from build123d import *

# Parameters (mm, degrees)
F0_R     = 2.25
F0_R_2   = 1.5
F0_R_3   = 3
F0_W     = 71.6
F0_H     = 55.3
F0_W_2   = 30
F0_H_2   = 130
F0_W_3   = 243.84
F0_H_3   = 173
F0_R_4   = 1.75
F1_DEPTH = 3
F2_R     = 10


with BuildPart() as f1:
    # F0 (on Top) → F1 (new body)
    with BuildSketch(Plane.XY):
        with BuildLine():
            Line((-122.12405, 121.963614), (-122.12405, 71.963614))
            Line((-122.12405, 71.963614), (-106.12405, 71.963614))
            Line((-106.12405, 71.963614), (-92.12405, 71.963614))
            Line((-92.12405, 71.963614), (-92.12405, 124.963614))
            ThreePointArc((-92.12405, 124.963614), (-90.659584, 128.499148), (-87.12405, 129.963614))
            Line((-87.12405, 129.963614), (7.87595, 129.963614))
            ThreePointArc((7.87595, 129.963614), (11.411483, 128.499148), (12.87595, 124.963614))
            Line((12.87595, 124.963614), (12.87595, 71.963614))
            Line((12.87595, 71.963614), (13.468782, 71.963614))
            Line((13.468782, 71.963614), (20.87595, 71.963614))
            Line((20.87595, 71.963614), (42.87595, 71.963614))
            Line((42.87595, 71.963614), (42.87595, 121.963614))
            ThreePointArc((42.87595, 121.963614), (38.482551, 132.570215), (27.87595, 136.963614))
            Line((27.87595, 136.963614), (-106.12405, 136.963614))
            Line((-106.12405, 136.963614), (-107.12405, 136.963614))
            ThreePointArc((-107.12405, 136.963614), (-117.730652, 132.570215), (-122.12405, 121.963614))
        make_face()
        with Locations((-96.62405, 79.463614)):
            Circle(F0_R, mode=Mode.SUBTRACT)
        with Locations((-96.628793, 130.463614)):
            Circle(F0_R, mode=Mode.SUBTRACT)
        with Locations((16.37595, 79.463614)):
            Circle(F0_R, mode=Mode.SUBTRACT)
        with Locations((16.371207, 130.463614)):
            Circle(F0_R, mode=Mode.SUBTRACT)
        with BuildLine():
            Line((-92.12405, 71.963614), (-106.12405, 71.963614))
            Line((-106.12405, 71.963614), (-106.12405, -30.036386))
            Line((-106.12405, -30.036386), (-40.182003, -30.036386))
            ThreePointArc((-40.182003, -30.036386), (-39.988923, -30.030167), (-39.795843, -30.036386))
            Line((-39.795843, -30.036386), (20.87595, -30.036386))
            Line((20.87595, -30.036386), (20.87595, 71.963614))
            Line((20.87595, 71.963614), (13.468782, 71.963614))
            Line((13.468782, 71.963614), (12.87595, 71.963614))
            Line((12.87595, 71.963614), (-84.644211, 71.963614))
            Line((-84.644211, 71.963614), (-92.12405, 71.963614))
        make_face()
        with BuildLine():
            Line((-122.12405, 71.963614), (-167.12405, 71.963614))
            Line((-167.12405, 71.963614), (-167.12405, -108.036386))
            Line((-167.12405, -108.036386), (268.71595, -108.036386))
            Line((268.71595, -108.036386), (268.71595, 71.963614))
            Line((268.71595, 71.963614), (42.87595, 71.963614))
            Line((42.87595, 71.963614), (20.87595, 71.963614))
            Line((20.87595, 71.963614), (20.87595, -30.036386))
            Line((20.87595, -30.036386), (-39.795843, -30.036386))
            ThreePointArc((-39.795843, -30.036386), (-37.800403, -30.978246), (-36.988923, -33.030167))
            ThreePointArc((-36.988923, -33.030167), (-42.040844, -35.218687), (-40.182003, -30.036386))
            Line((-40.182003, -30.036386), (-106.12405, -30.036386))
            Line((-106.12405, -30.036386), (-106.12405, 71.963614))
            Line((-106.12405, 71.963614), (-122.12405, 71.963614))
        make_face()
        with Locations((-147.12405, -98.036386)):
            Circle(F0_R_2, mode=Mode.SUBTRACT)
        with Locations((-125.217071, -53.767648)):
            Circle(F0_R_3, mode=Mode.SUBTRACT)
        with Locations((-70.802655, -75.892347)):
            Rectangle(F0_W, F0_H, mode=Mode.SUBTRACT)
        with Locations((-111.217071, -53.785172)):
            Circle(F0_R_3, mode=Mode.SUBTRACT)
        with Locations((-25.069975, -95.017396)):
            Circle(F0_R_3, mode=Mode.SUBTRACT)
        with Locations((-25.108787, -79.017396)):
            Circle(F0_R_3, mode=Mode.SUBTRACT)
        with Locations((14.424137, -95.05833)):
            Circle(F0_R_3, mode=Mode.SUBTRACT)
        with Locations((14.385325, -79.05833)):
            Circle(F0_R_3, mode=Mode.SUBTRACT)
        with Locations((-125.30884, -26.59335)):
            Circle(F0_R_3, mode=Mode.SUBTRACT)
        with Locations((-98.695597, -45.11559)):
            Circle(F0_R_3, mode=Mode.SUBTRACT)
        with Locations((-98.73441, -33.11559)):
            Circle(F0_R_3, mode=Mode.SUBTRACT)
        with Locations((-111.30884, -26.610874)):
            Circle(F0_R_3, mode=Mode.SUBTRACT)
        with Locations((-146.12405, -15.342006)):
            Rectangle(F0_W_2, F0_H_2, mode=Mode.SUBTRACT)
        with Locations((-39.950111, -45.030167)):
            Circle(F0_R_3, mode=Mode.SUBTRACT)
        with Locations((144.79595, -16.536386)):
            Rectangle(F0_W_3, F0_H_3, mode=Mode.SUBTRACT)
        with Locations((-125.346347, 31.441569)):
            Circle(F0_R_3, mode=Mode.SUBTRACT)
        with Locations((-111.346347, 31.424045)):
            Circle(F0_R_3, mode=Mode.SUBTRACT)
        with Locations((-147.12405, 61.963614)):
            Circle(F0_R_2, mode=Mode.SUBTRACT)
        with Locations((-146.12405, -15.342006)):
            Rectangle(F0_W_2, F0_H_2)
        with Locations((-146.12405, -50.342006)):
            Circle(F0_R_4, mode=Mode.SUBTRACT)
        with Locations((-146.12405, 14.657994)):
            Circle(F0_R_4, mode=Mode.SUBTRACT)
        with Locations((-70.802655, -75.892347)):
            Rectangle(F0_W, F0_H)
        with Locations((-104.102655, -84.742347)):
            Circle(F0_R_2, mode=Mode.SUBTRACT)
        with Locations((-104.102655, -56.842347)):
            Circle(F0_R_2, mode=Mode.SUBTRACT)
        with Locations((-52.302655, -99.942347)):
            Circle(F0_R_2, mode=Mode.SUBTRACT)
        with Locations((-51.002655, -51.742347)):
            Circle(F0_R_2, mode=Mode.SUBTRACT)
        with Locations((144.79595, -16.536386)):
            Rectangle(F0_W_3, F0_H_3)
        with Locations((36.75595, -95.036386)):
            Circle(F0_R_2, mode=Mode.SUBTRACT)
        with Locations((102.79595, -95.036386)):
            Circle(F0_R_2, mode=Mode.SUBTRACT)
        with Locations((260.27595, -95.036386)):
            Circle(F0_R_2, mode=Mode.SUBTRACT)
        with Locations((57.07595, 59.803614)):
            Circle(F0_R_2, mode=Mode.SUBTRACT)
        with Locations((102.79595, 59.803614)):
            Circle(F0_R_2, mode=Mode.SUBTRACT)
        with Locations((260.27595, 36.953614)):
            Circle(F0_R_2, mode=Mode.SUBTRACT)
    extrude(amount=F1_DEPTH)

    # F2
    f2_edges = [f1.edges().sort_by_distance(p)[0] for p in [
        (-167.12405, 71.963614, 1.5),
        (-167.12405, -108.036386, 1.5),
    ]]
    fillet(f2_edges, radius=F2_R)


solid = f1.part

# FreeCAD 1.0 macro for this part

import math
import FreeCAD as App
import Part
import Sketcher


def edges_at(feature, points):
    """Names of the edges that pass closest to the given points."""
    edges = feature.Shape.Edges
    near = lambda p: min(range(len(edges)), key=lambda i: edges[i].distToShape(Part.Vertex(*p))[0])
    return sorted({f"Edge{near(p) + 1}" for p in points})

doc = App.newDocument("Part")
body = doc.addObject("PartDesign::Body", "Body")

# Sketch on XY plane
sketch1 = body.newObject("Sketcher::SketchObject", "Sketch")
sketch1.AttachmentSupport = (doc.getObject("XY_Plane"), [""])
sketch1.MapMode = "FlatFace"
sketch1.addGeometry([
    Part.LineSegment(App.Vector(-122.12, 121.96, 0), App.Vector(-122.12, 71.96, 0)),  # 0
    Part.LineSegment(App.Vector(-122.12, 71.96, 0), App.Vector(-167.12, 71.96, 0)),  # 1
    Part.LineSegment(App.Vector(-167.12, 71.96, 0), App.Vector(-167.12, -108.04, 0)),  # 2
    Part.LineSegment(App.Vector(-167.12, -108.04, 0), App.Vector(268.72, -108.04, 0)),  # 3
    Part.LineSegment(App.Vector(268.72, -108.04, 0), App.Vector(268.72, 71.96, 0)),  # 4
    Part.LineSegment(App.Vector(268.72, 71.96, 0), App.Vector(42.88, 71.96, 0)),  # 5
    Part.LineSegment(App.Vector(42.88, 71.96, 0), App.Vector(42.88, 121.96, 0)),  # 6
    Part.ArcOfCircle(Part.Circle(App.Vector(27.88, 121.96, 0), App.Vector(0, 0, 1), 15), math.radians(0), math.radians(90)),  # 7
    Part.LineSegment(App.Vector(27.88, 136.96, 0), App.Vector(-107.12, 136.96, 0)),  # 8
    Part.ArcOfCircle(Part.Circle(App.Vector(-107.12, 121.96, 0), App.Vector(0, 0, 1), 15), math.radians(90), math.radians(180)),  # 9
    Part.Circle(App.Vector(-147.12, -98.04, 0), App.Vector(0, 0, 1), 1.5),  # 10
    Part.Circle(App.Vector(-104.1, -84.74, 0), App.Vector(0, 0, 1), 1.5),  # 11
    Part.Circle(App.Vector(-52.3, -99.94, 0), App.Vector(0, 0, 1), 1.5),  # 12
    Part.Circle(App.Vector(-146.12, -50.34, 0), App.Vector(0, 0, 1), 1.75),  # 13
    Part.Circle(App.Vector(-125.22, -53.77, 0), App.Vector(0, 0, 1), 3),  # 14
    Part.Circle(App.Vector(-111.22, -53.79, 0), App.Vector(0, 0, 1), 3),  # 15
    Part.Circle(App.Vector(-104.1, -56.84, 0), App.Vector(0, 0, 1), 1.5),  # 16
    Part.Circle(App.Vector(-98.7, -45.12, 0), App.Vector(0, 0, 1), 3),  # 17
    Part.Circle(App.Vector(-51, -51.74, 0), App.Vector(0, 0, 1), 1.5),  # 18
    Part.Circle(App.Vector(-25.07, -95.02, 0), App.Vector(0, 0, 1), 3),  # 19
    Part.Circle(App.Vector(-25.11, -79.02, 0), App.Vector(0, 0, 1), 3),  # 20
    Part.Circle(App.Vector(14.42, -95.06, 0), App.Vector(0, 0, 1), 3),  # 21
    Part.Circle(App.Vector(36.76, -95.04, 0), App.Vector(0, 0, 1), 1.5),  # 22
    Part.Circle(App.Vector(14.39, -79.06, 0), App.Vector(0, 0, 1), 3),  # 23
    Part.Circle(App.Vector(-39.95, -45.03, 0), App.Vector(0, 0, 1), 3),  # 24
    Part.Circle(App.Vector(-98.73, -33.12, 0), App.Vector(0, 0, 1), 3),  # 25
    Part.Circle(App.Vector(-125.31, -26.59, 0), App.Vector(0, 0, 1), 3),  # 26
    Part.Circle(App.Vector(-111.31, -26.61, 0), App.Vector(0, 0, 1), 3),  # 27
    Part.Circle(App.Vector(-146.12, 14.66, 0), App.Vector(0, 0, 1), 1.75),  # 28
    Part.ArcOfCircle(Part.Circle(App.Vector(-39.99, -33.03, 0), App.Vector(0, 0, 1), 3), math.radians(86.31), math.radians(93.69)),  # 29
    Part.ArcOfCircle(Part.Circle(App.Vector(-39.99, -33.03, 0), App.Vector(0, 0, 1), 3), math.radians(0), math.radians(86)),  # 30
    Part.ArcOfCircle(Part.Circle(App.Vector(-39.99, -33.03, 0), App.Vector(0, 0, 1), 3), math.radians(94), math.radians(360)),  # 31
    Part.Circle(App.Vector(102.8, -95.04, 0), App.Vector(0, 0, 1), 1.5),  # 32
    Part.Circle(App.Vector(260.28, -95.04, 0), App.Vector(0, 0, 1), 1.5),  # 33
    Part.Circle(App.Vector(-125.35, 31.44, 0), App.Vector(0, 0, 1), 3),  # 34
    Part.Circle(App.Vector(-111.35, 31.42, 0), App.Vector(0, 0, 1), 3),  # 35
    Part.Circle(App.Vector(-147.12, 61.96, 0), App.Vector(0, 0, 1), 1.5),  # 36
    Part.Circle(App.Vector(-96.62, 79.46, 0), App.Vector(0, 0, 1), 2.25),  # 37
    Part.Circle(App.Vector(-96.63, 130.46, 0), App.Vector(0, 0, 1), 2.25),  # 38
    Part.LineSegment(App.Vector(-92.12, 71.96, 0), App.Vector(-92.12, 124.96, 0)),  # 39
    Part.ArcOfCircle(Part.Circle(App.Vector(-87.12, 124.96, 0), App.Vector(0, 0, 1), 5), math.radians(90), math.radians(180)),  # 40
    Part.LineSegment(App.Vector(-87.12, 129.96, 0), App.Vector(7.88, 129.96, 0)),  # 41
    Part.ArcOfCircle(Part.Circle(App.Vector(7.88, 124.96, 0), App.Vector(0, 0, 1), 5), math.radians(0), math.radians(90)),  # 42
    Part.LineSegment(App.Vector(12.88, 124.96, 0), App.Vector(12.88, 71.96, 0)),  # 43
    Part.LineSegment(App.Vector(12.88, 71.96, 0), App.Vector(-92.12, 71.96, 0)),  # 44
    Part.Circle(App.Vector(16.38, 79.46, 0), App.Vector(0, 0, 1), 2.25),  # 45
    Part.Circle(App.Vector(16.37, 130.46, 0), App.Vector(0, 0, 1), 2.25),  # 46
    Part.Circle(App.Vector(57.08, 59.8, 0), App.Vector(0, 0, 1), 1.5),  # 47
    Part.Circle(App.Vector(102.8, 59.8, 0), App.Vector(0, 0, 1), 1.5),  # 48
    Part.Circle(App.Vector(260.28, 36.95, 0), App.Vector(0, 0, 1), 1.5),  # 49
], False)
sketch1.addConstraint([
    Sketcher.Constraint("Coincident", 0, 2, 1, 1),
    Sketcher.Constraint("Coincident", 1, 2, 2, 1),
    Sketcher.Constraint("Coincident", 2, 2, 3, 1),
    Sketcher.Constraint("Coincident", 3, 2, 4, 1),
    Sketcher.Constraint("Coincident", 4, 2, 5, 1),
    Sketcher.Constraint("Coincident", 5, 2, 6, 1),
    Sketcher.Constraint("Tangent", 6, 2, 7, 1),
    Sketcher.Constraint("Tangent", 7, 2, 8, 1),
    Sketcher.Constraint("Tangent", 8, 2, 9, 1),
    Sketcher.Constraint("Tangent", 9, 2, 0, 1),
    Sketcher.Constraint("Coincident", 29, 1, 30, 2),
    Sketcher.Constraint("Tangent", 30, 1, 31, 2),
    Sketcher.Constraint("Coincident", 31, 1, 29, 2),
    Sketcher.Constraint("Tangent", 39, 2, 40, 2),
    Sketcher.Constraint("Tangent", 40, 1, 41, 1),
    Sketcher.Constraint("Tangent", 41, 2, 42, 2),
    Sketcher.Constraint("Tangent", 42, 1, 43, 1),
    Sketcher.Constraint("Coincident", 43, 2, 44, 1),
    Sketcher.Constraint("Coincident", 44, 2, 39, 1),
    Sketcher.Constraint("Vertical", 0),
    Sketcher.Constraint("Horizontal", 1),
    Sketcher.Constraint("Vertical", 2),
    Sketcher.Constraint("Horizontal", 3),
    Sketcher.Constraint("Vertical", 4),
    Sketcher.Constraint("Horizontal", 5),
    Sketcher.Constraint("Vertical", 6),
    Sketcher.Constraint("Horizontal", 8),
    Sketcher.Constraint("Vertical", 39),
    Sketcher.Constraint("Horizontal", 41),
    Sketcher.Constraint("Vertical", 43),
    Sketcher.Constraint("Horizontal", 44),
    Sketcher.Constraint("Equal", 7, 9),
    Sketcher.Constraint("Equal", 10, 11),
    Sketcher.Constraint("Equal", 11, 12),
    Sketcher.Constraint("Equal", 14, 15),
    Sketcher.Constraint("Equal", 12, 16),
    Sketcher.Constraint("Equal", 15, 17),
    Sketcher.Constraint("Equal", 16, 18),
    Sketcher.Constraint("Equal", 17, 19),
    Sketcher.Constraint("Equal", 19, 20),
    Sketcher.Constraint("Equal", 20, 21),
    Sketcher.Constraint("Equal", 18, 22),
    Sketcher.Constraint("Equal", 21, 23),
    Sketcher.Constraint("Equal", 23, 24),
    Sketcher.Constraint("Equal", 24, 25),
    Sketcher.Constraint("Equal", 25, 26),
    Sketcher.Constraint("Equal", 26, 27),
    Sketcher.Constraint("Equal", 13, 28),
    Sketcher.Constraint("Equal", 27, 30),
    Sketcher.Constraint("Equal", 30, 31),
    Sketcher.Constraint("Equal", 22, 32),
    Sketcher.Constraint("Equal", 32, 33),
    Sketcher.Constraint("Equal", 31, 34),
    Sketcher.Constraint("Equal", 34, 35),
    Sketcher.Constraint("Equal", 33, 36),
    Sketcher.Constraint("Equal", 37, 38),
    Sketcher.Constraint("Equal", 40, 42),
    Sketcher.Constraint("Equal", 38, 45),
    Sketcher.Constraint("Equal", 45, 46),
    Sketcher.Constraint("Equal", 36, 47),
    Sketcher.Constraint("Equal", 47, 48),
    Sketcher.Constraint("Equal", 48, 49),
    Sketcher.Constraint("Horizontal", 22, 3, 32, 3),
    Sketcher.Constraint("Horizontal", 32, 3, 33, 3),
    Sketcher.Constraint("Horizontal", 37, 3, 45, 3),
    Sketcher.Constraint("Horizontal", 38, 3, 46, 3),
    Sketcher.Constraint("Horizontal", 47, 3, 48, 3),
    Sketcher.Constraint("Horizontal", 1, 2, 4, 2),
    Sketcher.Constraint("Horizontal", 31, 3, 30, 1),
    Sketcher.Constraint("Horizontal", 29, 1, 31, 1),
    Sketcher.Constraint("Horizontal", 5, 2, 43, 2),
    Sketcher.Constraint("Vertical", 11, 3, 16, 3),
    Sketcher.Constraint("Vertical", 13, 3, 28, 3),
    Sketcher.Constraint("Vertical", 10, 3, 36, 3),
    Sketcher.Constraint("Vertical", 32, 3, 48, 3),
    Sketcher.Constraint("Vertical", 33, 3, 49, 3),
    Sketcher.Constraint("Diameter", 10, 3.0),
    Sketcher.Constraint("Diameter", 14, 6.0),
    Sketcher.Constraint("Radius", 9, 15.000001),
    Sketcher.Constraint("Radius", 40, 5.0),
    Sketcher.Constraint("Diameter", 13, 3.5),
    Sketcher.Constraint("Diameter", 37, 4.5),
    Sketcher.Constraint("DistanceX", 1, 2, 1, 1, 45.0),
    Sketcher.Constraint("DistanceX", 8, 2, 8, 1, 135.0),
    Sketcher.Constraint("DistanceX", 41, 1, 41, 2, 95.0),
    Sketcher.Constraint("DistanceY", 0, 2, 0, 1, 50.0),
    Sketcher.Constraint("DistanceY", 2, 2, 2, 1, 180.0),
    Sketcher.Constraint("DistanceY", 39, 1, 39, 2, 53.0),
    Sketcher.Constraint("DistanceX", 10, 3, 9, 3, 40.000001),
    Sketcher.Constraint("DistanceY", 10, 3, 9, 3, 219.999999),
    Sketcher.Constraint("DistanceX", 10, 3, 13, 3, 1.0),
    Sketcher.Constraint("DistanceX", 14, 3, 15, 3, 14.0),
    Sketcher.Constraint("DistanceY", 11, 3, 18, 3, 33.0),
    Sketcher.Constraint("DistanceY", 19, 3, 20, 3, 16.0),
    Sketcher.Constraint("DistanceY", 21, 3, 23, 3, 16.0),
    Sketcher.Constraint("DistanceY", 17, 3, 25, 3, 12.0),
    Sketcher.Constraint("DistanceX", 26, 3, 27, 3, 14.0),
    Sketcher.Constraint("DistanceY", 13, 3, 28, 3, 65.0),
    Sketcher.Constraint("DistanceY", 24, 3, 30, 3, 11.999999),
    Sketcher.Constraint("DistanceX", 34, 3, 35, 3, 14.0),
    Sketcher.Constraint("DistanceY", 36, 3, 9, 3, 59.999999),
    Sketcher.Constraint("DistanceY", 37, 3, 38, 3, 51.0),
    Sketcher.Constraint("DistanceX", 9, 3, 40, 3, 19.999999),
    Sketcher.Constraint("DistanceX", 37, 3, 45, 3, 113.0),
    Sketcher.Constraint("DistanceX", 38, 3, 46, 3, 113.0),
    Sketcher.Constraint("DistanceY", 3, 2, 33, 3, 13.0),
    Sketcher.Constraint("DistanceX", 3, 1, 3, 2, 435.84),
    Sketcher.Constraint("DistanceX", 11, 3, 12, 3, 51.8),
    Sketcher.Constraint("DistanceY", 12, 3, 11, 3, 15.2),
    Sketcher.Constraint("DistanceY", 11, 3, 16, 3, 27.9),
    Sketcher.Constraint("DistanceX", 12, 3, 18, 3, 1.3),
    Sketcher.Constraint("DistanceX", 9, 3, 37, 3, 10.499999),
    Sketcher.Constraint("DistanceY", 37, 3, 9, 3, 42.499999),
    Sketcher.Constraint("DistanceX", 45, 3, 47, 3, 40.7),
    Sketcher.Constraint("DistanceX", 47, 3, 49, 3, 203.2),
    Sketcher.Constraint("DistanceX", 22, 3, 32, 3, 66.04),
    Sketcher.Constraint("DistanceX", 32, 3, 33, 3, 157.48),
    Sketcher.Constraint("DistanceY", 47, 3, 45, 3, 19.66),
    Sketcher.Constraint("DistanceY", 33, 3, 49, 3, 131.99),
    Sketcher.Constraint("Radius", 29, 3.000367),
    Sketcher.Constraint("DistanceY", 11, 3, 14, 3, 30.974699),
    Sketcher.Constraint("DistanceX", 19, 3, 23, 3, 39.4553),
    Sketcher.Constraint("DistanceY", 14, 3, 26, 3, 27.174298),
    Sketcher.Constraint("DistanceY", 15, 3, 27, 3, 27.174298),
    Sketcher.Constraint("DistanceY", -1, 1, 7, 3, 121.963612),
    Sketcher.Constraint("DistanceX", 9, 3, -1, 1, 107.124049),
    Sketcher.Constraint("DistanceX", 14, 3, -1, 1, 125.217071),
    Sketcher.Constraint("DistanceY", 17, 3, -1, 1, 45.11559),
    Sketcher.Constraint("DistanceY", 21, 3, -1, 1, 95.05833),
    Sketcher.Constraint("DistanceX", 24, 3, -1, 1, 39.950111),
    Sketcher.Constraint("DistanceX", 25, 3, -1, 1, 98.73441),
    Sketcher.Constraint("DistanceX", 26, 3, -1, 1, 125.30884),
    Sketcher.Constraint("DistanceY", 26, 3, -1, 1, 26.59335),
    Sketcher.Constraint("DistanceY", -1, 1, 34, 3, 31.441569),
    Sketcher.Constraint("DistanceY", 10, 3, 13, 3, 47.69438),
    Sketcher.Constraint("DistanceX", 12, 3, 19, 3, 27.23268),
    Sketcher.Constraint("DistanceY", 12, 3, 19, 3, 4.924951),
    Sketcher.Constraint("DistanceX", 12, 3, 20, 3, 27.193868),
    Sketcher.Constraint("DistanceX", 17, 3, 20, 3, 73.58681),
    Sketcher.Constraint("DistanceX", 18, 3, 21, 3, 65.426792),
    Sketcher.Constraint("DistanceY", 18, 3, 24, 3, 6.71218),
    Sketcher.Constraint("DistanceX", 18, 3, 29, 3, 11.013732),
    Sketcher.Constraint("DistanceX", 34, 3, 17, 3, 26.65075),
    Sketcher.Constraint("DistanceY", 28, 3, 35, 3, 16.766051),
    Sketcher.Constraint("DistanceY", 27, 3, 35, 3, 58.034919),
    Sketcher.Constraint("DistanceX", 38, 3, 42, 3, 104.504742),
    Sketcher.Constraint("DistanceX", 31, 3, 29, 1, 0.19308),
    Sketcher.Constraint("DistanceX", 11, 3, -1, 1, 104.102655),
])
pad1 = body.newObject("PartDesign::Pad", "Pad")
pad1.Profile = sketch1
pad1.Length = 3
doc.recompute()

fillet = body.newObject("PartDesign::Fillet", "Fillet")
fillet.Base = (pad1, edges_at(pad1, [(-167.124, 71.964, 1.5), (-167.124, -108.036, 1.5)]))
fillet.Radius = 10

doc.recompute()
